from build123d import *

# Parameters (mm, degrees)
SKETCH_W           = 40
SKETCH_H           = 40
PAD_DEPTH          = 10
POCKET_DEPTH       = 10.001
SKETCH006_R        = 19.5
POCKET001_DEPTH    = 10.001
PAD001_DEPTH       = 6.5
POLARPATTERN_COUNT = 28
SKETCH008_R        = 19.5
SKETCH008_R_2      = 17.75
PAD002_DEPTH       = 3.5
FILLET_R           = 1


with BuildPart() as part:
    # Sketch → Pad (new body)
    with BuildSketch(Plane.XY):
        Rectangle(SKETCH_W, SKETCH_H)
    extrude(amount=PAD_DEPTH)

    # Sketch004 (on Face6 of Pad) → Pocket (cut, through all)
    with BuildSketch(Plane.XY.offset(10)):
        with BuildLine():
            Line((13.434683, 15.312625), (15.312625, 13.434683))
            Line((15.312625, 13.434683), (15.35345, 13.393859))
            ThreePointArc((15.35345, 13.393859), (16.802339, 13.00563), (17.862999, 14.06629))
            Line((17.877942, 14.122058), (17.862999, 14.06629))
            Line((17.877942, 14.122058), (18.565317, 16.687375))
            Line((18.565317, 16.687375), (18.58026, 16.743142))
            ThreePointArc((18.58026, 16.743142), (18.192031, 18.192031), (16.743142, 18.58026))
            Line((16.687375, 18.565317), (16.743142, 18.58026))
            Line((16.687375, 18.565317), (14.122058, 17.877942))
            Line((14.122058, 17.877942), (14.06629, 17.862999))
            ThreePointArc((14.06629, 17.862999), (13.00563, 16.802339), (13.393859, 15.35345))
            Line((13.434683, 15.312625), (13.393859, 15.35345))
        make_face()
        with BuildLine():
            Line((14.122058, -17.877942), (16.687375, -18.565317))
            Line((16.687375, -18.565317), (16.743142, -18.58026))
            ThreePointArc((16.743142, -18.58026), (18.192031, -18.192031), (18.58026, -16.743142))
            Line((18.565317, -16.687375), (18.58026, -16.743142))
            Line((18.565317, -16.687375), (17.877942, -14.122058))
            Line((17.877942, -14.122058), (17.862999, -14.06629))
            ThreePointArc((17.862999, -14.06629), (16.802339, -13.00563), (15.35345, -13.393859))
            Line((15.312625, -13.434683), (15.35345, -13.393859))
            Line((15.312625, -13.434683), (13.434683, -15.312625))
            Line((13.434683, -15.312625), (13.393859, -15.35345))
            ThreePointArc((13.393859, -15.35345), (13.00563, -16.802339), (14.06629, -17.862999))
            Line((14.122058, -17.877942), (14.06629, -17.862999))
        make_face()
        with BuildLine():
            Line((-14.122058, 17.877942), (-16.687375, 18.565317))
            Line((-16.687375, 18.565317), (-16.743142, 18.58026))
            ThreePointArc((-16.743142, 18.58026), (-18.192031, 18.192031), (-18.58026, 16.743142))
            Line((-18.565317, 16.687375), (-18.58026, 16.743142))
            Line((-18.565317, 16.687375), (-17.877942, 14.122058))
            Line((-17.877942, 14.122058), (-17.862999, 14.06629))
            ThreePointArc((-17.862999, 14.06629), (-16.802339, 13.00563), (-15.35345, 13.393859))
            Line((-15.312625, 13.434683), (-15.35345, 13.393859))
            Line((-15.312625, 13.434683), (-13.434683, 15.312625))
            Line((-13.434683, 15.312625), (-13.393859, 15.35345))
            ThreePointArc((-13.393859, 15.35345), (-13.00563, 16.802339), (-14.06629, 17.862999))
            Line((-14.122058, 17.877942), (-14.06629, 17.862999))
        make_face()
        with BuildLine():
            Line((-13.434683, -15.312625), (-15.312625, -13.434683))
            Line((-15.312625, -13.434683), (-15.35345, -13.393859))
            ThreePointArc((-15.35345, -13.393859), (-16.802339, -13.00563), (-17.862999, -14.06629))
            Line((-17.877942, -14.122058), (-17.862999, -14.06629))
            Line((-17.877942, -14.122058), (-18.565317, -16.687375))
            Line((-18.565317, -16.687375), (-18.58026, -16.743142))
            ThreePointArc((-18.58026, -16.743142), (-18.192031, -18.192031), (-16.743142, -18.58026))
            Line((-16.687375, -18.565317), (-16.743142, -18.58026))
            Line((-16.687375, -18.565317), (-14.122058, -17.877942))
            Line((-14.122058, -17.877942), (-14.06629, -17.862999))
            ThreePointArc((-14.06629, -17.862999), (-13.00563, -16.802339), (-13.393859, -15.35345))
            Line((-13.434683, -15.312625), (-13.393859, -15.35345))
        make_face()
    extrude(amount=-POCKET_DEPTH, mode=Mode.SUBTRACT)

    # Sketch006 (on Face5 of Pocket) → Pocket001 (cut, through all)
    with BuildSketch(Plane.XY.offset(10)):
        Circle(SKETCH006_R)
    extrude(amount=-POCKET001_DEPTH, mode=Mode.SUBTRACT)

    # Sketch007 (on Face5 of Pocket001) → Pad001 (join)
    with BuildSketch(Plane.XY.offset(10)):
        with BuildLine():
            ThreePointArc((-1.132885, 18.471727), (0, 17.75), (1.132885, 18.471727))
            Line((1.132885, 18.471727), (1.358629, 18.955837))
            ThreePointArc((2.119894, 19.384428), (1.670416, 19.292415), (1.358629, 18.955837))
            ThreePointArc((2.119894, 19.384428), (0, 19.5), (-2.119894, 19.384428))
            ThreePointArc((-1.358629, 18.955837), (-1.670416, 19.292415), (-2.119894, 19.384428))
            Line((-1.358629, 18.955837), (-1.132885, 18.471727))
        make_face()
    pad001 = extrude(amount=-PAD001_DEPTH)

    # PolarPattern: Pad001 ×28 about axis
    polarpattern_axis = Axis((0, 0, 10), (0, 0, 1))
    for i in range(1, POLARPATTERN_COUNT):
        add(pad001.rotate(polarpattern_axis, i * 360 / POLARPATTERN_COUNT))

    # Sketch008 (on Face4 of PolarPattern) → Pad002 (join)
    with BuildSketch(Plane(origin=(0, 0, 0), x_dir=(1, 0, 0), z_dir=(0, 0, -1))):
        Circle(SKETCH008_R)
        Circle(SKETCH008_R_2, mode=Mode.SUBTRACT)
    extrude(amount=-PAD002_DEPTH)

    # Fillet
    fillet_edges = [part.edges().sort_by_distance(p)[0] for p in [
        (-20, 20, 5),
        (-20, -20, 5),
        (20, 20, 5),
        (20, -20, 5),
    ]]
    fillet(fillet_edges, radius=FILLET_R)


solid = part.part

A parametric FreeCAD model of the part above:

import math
import FreeCAD as App
import Part
import Sketcher
Q = App.Units.Quantity


def edges_at(feature, points):
    """Names of the edges that pass closest to the given points."""
    edges = feature.Shape.Edges
    near = lambda p: min(range(len(edges)), key=lambda i: edges[i].distToShape(Part.Vertex(*p))[0])
    return sorted({f"Edge{near(p) + 1}" for p in points})


def add_polygon(sketch, points):
    """Adds a closed chain of lines whose ends are joined by coincident constraints."""
    first, n = sketch.GeometryCount, len(points)
    for a, b in zip(points, points[1:] + points[:1]):
        sketch.addGeometry(Part.LineSegment(App.Vector(*a, 0), App.Vector(*b, 0)), False)
    for i in range(n):
        sketch.addConstraint(Sketcher.Constraint("Coincident", first + i, 2, first + (i + 1) % n, 1))

doc = App.newDocument("Part")
body = doc.addObject("PartDesign::Body", "Body")

# Sketch on XY plane
sketch1 = doc.addObject("Sketcher::SketchObject", "Sketch")
body.addObject(sketch1)
sketch1.AttachmentSupport = (doc.XY_Plane, [""])
sketch1.MapMode = "FlatFace"
add_polygon(sketch1, [(-20, 20), (-20, -20), (20, -20), (20, 20)])  # lines 0-3
sketch1.addConstraint(Sketcher.Constraint("Vertical", 0))
sketch1.addConstraint(Sketcher.Constraint("Horizontal", 1))
sketch1.addConstraint(Sketcher.Constraint("Vertical", 2))
sketch1.addConstraint(Sketcher.Constraint("Horizontal", 3))
sketch1.addConstraint(Sketcher.Constraint("Symmetric", 0, 2, 2, 2, -1, 1))
sketch1.addConstraint(Sketcher.Constraint("Equal", 3, 0))
sketch1.addConstraint(Sketcher.Constraint("DistanceX", 1, 1, 1, 2, Q("40 mm")))
pad1 = doc.addObject("PartDesign::Pad", "Pad")
body.addObject(pad1)
pad1.Profile = sketch1
pad1.Length = 10

# Sketch on XY plane
sketch2 = doc.addObject("Sketcher::SketchObject", "Sketch001")
body.addObject(sketch2)
sketch2.AttachmentSupport = (doc.XY_Plane, [""])
sketch2.MapMode = "FlatFace"
sketch2.AttachmentOffset = App.Placement(App.Vector(0, 0, 10), App.Rotation())
sketch2.addGeometry(Part.LineSegment(App.Vector(13.434683, 15.312625, 0), App.Vector(15.312625, 13.434683, 0)), False)
sketch2.addGeometry(Part.LineSegment(App.Vector(15.312625, 13.434683, 0), App.Vector(15.35345, 13.393859, 0)), False)
sketch2.addGeometry(Part.ArcOfCircle(Part.Circle(App.Vector(16.41411, 14.454519, 0), App.Vector(0, 0, 1), 1.5), math.radians(-135.000027), math.radians(-15)), False)
sketch2.addGeometry(Part.LineSegment(App.Vector(17.862999, 14.06629, 0), App.Vector(17.877942, 14.122058, 0)), False)
sketch2.addGeometry(Part.LineSegment(App.Vector(17.877942, 14.122058, 0), App.Vector(18.565317, 16.687375, 0)), False)
sketch2.addGeometry(Part.LineSegment(App.Vector(18.565317, 16.687375, 0), App.Vector(18.58026, 16.743142, 0)), False)
sketch2.addGeometry(Part.ArcOfCircle(Part.Circle(App.Vector(17.13137, 17.13137, 0), App.Vector(0, 0, 1), 1.500001), math.radians(-14.999973), math.radians(104.999973)), False)
sketch2.addGeometry(Part.LineSegment(App.Vector(16.743142, 18.58026, 0), App.Vector(16.687375, 18.565317, 0)), False)
sketch2.addGeometry(Part.LineSegment(App.Vector(16.687375, 18.565317, 0), App.Vector(14.122058, 17.877942, 0)), False)
sketch2.addGeometry(Part.LineSegment(App.Vector(14.122058, 17.877942, 0), App.Vector(14.06629, 17.862999, 0)), False)
sketch2.addGeometry(Part.ArcOfCircle(Part.Circle(App.Vector(14.454519, 16.41411, 0), App.Vector(0, 0, 1), 1.5), math.radians(105), math.radians(225.000027)), False)
sketch2.addGeometry(Part.LineSegment(App.Vector(13.393859, 15.35345, 0), App.Vector(13.434683, 15.312625, 0)), False)
sketch2.addGeometry(Part.LineSegment(App.Vector(14.122058, -17.877942, 0), App.Vector(16.687375, -18.565317, 0)), False)
sketch2.addGeometry(Part.LineSegment(App.Vector(16.687375, -18.565317, 0), App.Vector(16.743142, -18.58026, 0)), False)
sketch2.addGeometry(Part.ArcOfCircle(Part.Circle(App.Vector(17.13137, -17.13137, 0), App.Vector(0, 0, 1), 1.500001), math.radians(-104.999973), math.radians(14.999973)), False)
sketch2.addGeometry(Part.LineSegment(App.Vector(18.58026, -16.743142, 0), App.Vector(18.565317, -16.687375, 0)), False)
sketch2.addGeometry(Part.LineSegment(App.Vector(18.565317, -16.687375, 0), App.Vector(17.877942, -14.122058, 0)), False)
sketch2.addGeometry(Part.LineSegment(App.Vector(17.877942, -14.122058, 0), App.Vector(17.862999, -14.06629, 0)), False)
sketch2.addGeometry(Part.ArcOfCircle(Part.Circle(App.Vector(16.41411, -14.454519, 0), App.Vector(0, 0, 1), 1.5), math.radians(15), math.radians(135.000027)), False)
sketch2.addGeometry(Part.LineSegment(App.Vector(15.35345, -13.393859, 0), App.Vector(15.312625, -13.434683, 0)), False)
sketch2.addGeometry(Part.LineSegment(App.Vector(15.312625, -13.434683, 0), App.Vector(13.434683, -15.312625, 0)), False)
sketch2.addGeometry(Part.LineSegment(App.Vector(13.434683, -15.312625, 0), App.Vector(13.393859, -15.35345, 0)), False)
sketch2.addGeometry(Part.ArcOfCircle(Part.Circle(App.Vector(14.454519, -16.41411, 0), App.Vector(0, 0, 1), 1.5), math.radians(134.999973), math.radians(255)), False)
sketch2.addGeometry(Part.LineSegment(App.Vector(14.06629, -17.862999, 0), App.Vector(14.122058, -17.877942, 0)), False)
sketch2.addGeometry(Part.LineSegment(App.Vector(-14.122058, 17.877942, 0), App.Vector(-16.687375, 18.565317, 0)), False)
sketch2.addGeometry(Part.LineSegment(App.Vector(-16.687375, 18.565317, 0), App.Vector(-16.743142, 18.58026, 0)), False)
sketch2.addGeometry(Part.ArcOfCircle(Part.Circle(App.Vector(-17.13137, 17.13137, 0), App.Vector(0, 0, 1), 1.500001), math.radians(75.000027), math.radians(194.999973)), False)
sketch2.addGeometry(Part.LineSegment(App.Vector(-18.58026, 16.743142, 0), App.Vector(-18.565317, 16.687375, 0)), False)
sketch2.addGeometry(Part.LineSegment(App.Vector(-18.565317, 16.687375, 0), App.Vector(-17.877942, 14.122058, 0)), False)
sketch2.addGeometry(Part.LineSegment(App.Vector(-17.877942, 14.122058, 0), App.Vector(-17.862999, 14.06629, 0)), False)
sketch2.addGeometry(Part.ArcOfCircle(Part.Circle(App.Vector(-16.41411, 14.454519, 0), App.Vector(0, 0, 1), 1.5), math.radians(-165), math.radians(-44.999973)), False)
sketch2.addGeometry(Part.LineSegment(App.Vector(-15.35345, 13.393859, 0), App.Vector(-15.312625, 13.434683, 0)), False)
sketch2.addGeometry(Part.LineSegment(App.Vector(-15.312625, 13.434683, 0), App.Vector(-13.434683, 15.312625, 0)), False)
sketch2.addGeometry(Part.LineSegment(App.Vector(-13.434683, 15.312625, 0), App.Vector(-13.393859, 15.35345, 0)), False)
sketch2.addGeometry(Part.ArcOfCircle(Part.Circle(App.Vector(-14.454519, 16.41411, 0), App.Vector(0, 0, 1), 1.5), math.radians(-45.000027), math.radians(75)), False)
sketch2.addGeometry(Part.LineSegment(App.Vector(-14.06629, 17.862999, 0), App.Vector(-14.122058, 17.877942, 0)), False)
sketch2.addGeometry(Part.LineSegment(App.Vector(-13.434683, -15.312625, 0), App.Vector(-15.312625, -13.434683, 0)), False)
sketch2.addGeometry(Part.LineSegment(App.Vector(-15.312625, -13.434683, 0), App.Vector(-15.35345, -13.393859, 0)), False)
sketch2.addGeometry(Part.ArcOfCircle(Part.Circle(App.Vector(-16.41411, -14.454519, 0), App.Vector(0, 0, 1), 1.5), math.radians(44.999973), math.radians(165)), False)
sketch2.addGeometry(Part.LineSegment(App.Vector(-17.862999, -14.06629, 0), App.Vector(-17.877942, -14.122058, 0)), False)
sketch2.addGeometry(Part.LineSegment(App.Vector(-17.877942, -14.122058, 0), App.Vector(-18.565317, -16.687375, 0)), False)
sketch2.addGeometry(Part.LineSegment(App.Vector(-18.565317, -16.687375, 0), App.Vector(-18.58026, -16.743142, 0)), False)
sketch2.addGeometry(Part.ArcOfCircle(Part.Circle(App.Vector(-17.13137, -17.13137, 0), App.Vector(0, 0, 1), 1.500001), math.radians(165.000027), math.radians(284.999973)), False)
sketch2.addGeometry(Part.LineSegment(App.Vector(-16.743142, -18.58026, 0), App.Vector(-16.687375, -18.565317, 0)), False)
sketch2.addGeometry(Part.LineSegment(App.Vector(-16.687375, -18.565317, 0), App.Vector(-14.122058, -17.877942, 0)), False)
sketch2.addGeometry(Part.LineSegment(App.Vector(-14.122058, -17.877942, 0), App.Vector(-14.06629, -17.862999, 0)), False)
sketch2.addGeometry(Part.ArcOfCircle(Part.Circle(App.Vector(-14.454519, -16.41411, 0), App.Vector(0, 0, 1), 1.5), math.radians(-75), math.radians(45.000027)), False)
sketch2.addGeometry(Part.LineSegment(App.Vector(-13.393859, -15.35345, 0), App.Vector(-13.434683, -15.312625, 0)), False)
sketch2.addConstraint(Sketcher.Constraint("Coincident", 0, 2, 1, 1))
sketch2.addConstraint(Sketcher.Constraint("Coincident", 1, 2, 2, 1))
sketch2.addConstraint(Sketcher.Constraint("Tangent", 2, 2, 3, 1))
sketch2.addConstraint(Sketcher.Constraint("Coincident", 3, 2, 4, 1))
sketch2.addConstraint(Sketcher.Constraint("Coincident", 4, 2, 5, 1))
sketch2.addConstraint(Sketcher.Constraint("Coincident", 5, 2, 6, 1))
sketch2.addConstraint(Sketcher.Constraint("Coincident", 6, 2, 7, 1))
sketch2.addConstraint(Sketcher.Constraint("Coincident", 7, 2, 8, 1))
sketch2.addConstraint(Sketcher.Constraint("Coincident", 8, 2, 9, 1))
sketch2.addConstraint(Sketcher.Constraint("Tangent", 9, 2, 10, 1))
sketch2.addConstraint(Sketcher.Constraint("Coincident", 10, 2, 11, 1))
sketch2.addConstraint(Sketcher.Constraint("Coincident", 11, 2, 0, 1))
sketch2.addConstraint(Sketcher.Constraint("Coincident", 12, 2, 13, 1))
sketch2.addConstraint(Sketcher.Constraint("Coincident", 13, 2, 14, 1))
sketch2.addConstraint(Sketcher.Constraint("Coincident", 14, 2, 15, 1))
sketch2.addConstraint(Sketcher.Constraint("Coincident", 15, 2, 16, 1))
sketch2.addConstraint(Sketcher.Constraint("Coincident", 16, 2, 17, 1))
sketch2.addConstraint(Sketcher.Constraint("Tangent", 17, 2, 18, 1))
sketch2.addConstraint(Sketcher.Constraint("Coincident", 18, 2, 19, 1))
sketch2.addConstraint(Sketcher.Constraint("Coincident", 19, 2, 20, 1))
sketch2.addConstraint(Sketcher.Constraint("Coincident", 20, 2, 21, 1))
sketch2.addConstraint(Sketcher.Constraint("Coincident", 21, 2, 22, 1))
sketch2.addConstraint(Sketcher.Constraint("Tangent", 22, 2, 23, 1))
sketch2.addConstraint(Sketcher.Constraint("Coincident", 23, 2, 12, 1))
sketch2.addConstraint(Sketcher.Constraint("Coincident", 24, 2, 25, 1))
sketch2.addConstraint(Sketcher.Constraint("Coincident", 25, 2, 26, 1))
sketch2.addConstraint(Sketcher.Constraint("Coincident", 26, 2, 27, 1))
sketch2.addConstraint(Sketcher.Constraint("Coincident", 27, 2, 28, 1))
sketch2.addConstraint(Sketcher.Constraint("Coincident", 28, 2, 29, 1))
sketch2.addConstraint(Sketcher.Constraint("Tangent", 29, 2, 30, 1))
sketch2.addConstraint(Sketcher.Constraint("Coincident", 30, 2, 31, 1))
sketch2.addConstraint(Sketcher.Constraint("Coincident", 31, 2, 32, 1))
sketch2.addConstraint(Sketcher.Constraint("Coincident", 32, 2, 33, 1))
sketch2.addConstraint(Sketcher.Constraint("Coincident", 33, 2, 34, 1))
sketch2.addConstraint(Sketcher.Constraint("Tangent", 34, 2, 35, 1))
sketch2.addConstraint(Sketcher.Constraint("Coincident", 35, 2, 24, 1))
sketch2.addConstraint(Sketcher.Constraint("Coincident", 36, 2, 37, 1))
sketch2.addConstraint(Sketcher.Constraint("Coincident", 37, 2, 38, 1))
sketch2.addConstraint(Sketcher.Constraint("Tangent", 38, 2, 39, 1))
sketch2.addConstraint(Sketcher.Constraint("Coincident", 39, 2, 40, 1))
sketch2.addConstraint(Sketcher.Constraint("Coincident", 40, 2, 41, 1))
sketch2.addConstraint(Sketcher.Constraint("Coincident", 41, 2, 42, 1))
sketch2.addConstraint(Sketcher.Constraint("Coincident", 42, 2, 43, 1))
sketch2.addConstraint(Sketcher.Constraint("Coincident", 43, 2, 44, 1))
sketch2.addConstraint(Sketcher.Constraint("Coincident", 44, 2, 45, 1))
sketch2.addConstraint(Sketcher.Constraint("Tangent", 45, 2, 46, 1))
sketch2.addConstraint(Sketcher.Constraint("Coincident", 46, 2, 47, 1))
sketch2.addConstraint(Sketcher.Constraint("Coincident", 47, 2, 36, 1))
sketch2.addConstraint(Sketcher.Constraint("Equal", 2, 6))
sketch2.addConstraint(Sketcher.Constraint("Equal", 6, 10))
sketch2.addConstraint(Sketcher.Constraint("Equal", 10, 14))
sketch2.addConstraint(Sketcher.Constraint("Equal", 14, 18))
sketch2.addConstraint(Sketcher.Constraint("Equal", 18, 22))
sketch2.addConstraint(Sketcher.Constraint("Equal", 22, 26))
sketch2.addConstraint(Sketcher.Constraint("Equal", 26, 30))
sketch2.addConstraint(Sketcher.Constraint("Equal", 30, 34))
sketch2.addConstraint(Sketcher.Constraint("Equal", 34, 38))
sketch2.addConstraint(Sketcher.Constraint("Equal", 38, 42))
sketch2.addConstraint(Sketcher.Constraint("Equal", 42, 46))
sketch2.addConstraint(Sketcher.Constraint("Symmetric", 14, 3, 26, 3, -1, 1))
sketch2.addConstraint(Sketcher.Constraint("Symmetric", 18, 3, 30, 3, -1, 1))
sketch2.addConstraint(Sketcher.Constraint("Symmetric", 22, 3, 34, 3, -1, 1))
sketch2.addConstraint(Sketcher.Constraint("Symmetric", 2, 3, 38, 3, -1, 1))
sketch2.addConstraint(Sketcher.Constraint("Symmetric", 6, 3, 42, 3, -1, 1))
sketch2.addConstraint(Sketcher.Constraint("Symmetric", 10, 3, 46, 3, -1, 1))
sketch2.addConstraint(Sketcher.Constraint("Symmetric", 12, 2, 24, 2, -1, 1))
sketch2.addConstraint(Sketcher.Constraint("Symmetric", 15, 2, 27, 2, -1, 1))
sketch2.addConstraint(Sketcher.Constraint("Symmetric", 16, 2, 28, 2, -1, 1))
sketch2.addConstraint(Sketcher.Constraint("Symmetric", 19, 2, 31, 2, -1, 1))
sketch2.addConstraint(Sketcher.Constraint("Symmetric", 20, 2, 32, 2, -1, 1))
sketch2.addConstraint(Sketcher.Constraint("Symmetric", 23, 2, 35, 2, -1, 1))
sketch2.addConstraint(Sketcher.Constraint("Symmetric", 0, 2, 36, 2, -1, 1))
sketch2.addConstraint(Sketcher.Constraint("Symmetric", 3, 2, 39, 2, -1, 1))
sketch2.addConstraint(Sketcher.Constraint("Symmetric", 4, 2, 40, 2, -1, 1))
sketch2.addConstraint(Sketcher.Constraint("Symmetric", 7, 2, 43, 2, -1, 1))
sketch2.addConstraint(Sketcher.Constraint("Symmetric", 8, 2, 44, 2, -1, 1))
sketch2.addConstraint(Sketcher.Constraint("Symmetric", 11, 2, 47, 2, -1, 1))
sketch2.addConstraint(Sketcher.Constraint("Symmetric", 6, 3, 26, 3, -2))
sketch2.addConstraint(Sketcher.Constraint("Symmetric", 2, 3, 30, 3, -2))
sketch2.addConstraint(Sketcher.Constraint("Symmetric", 10, 3, 34, 3, -2))
sketch2.addConstraint(Sketcher.Constraint("Symmetric", 7, 2, 24, 2, -2))
sketch2.addConstraint(Sketcher.Constraint("Symmetric", 4, 2, 27, 2, -2))
sketch2.addConstraint(Sketcher.Constraint("Symmetric", 3, 2, 28, 2, -2))
sketch2.addConstraint(Sketcher.Constraint("Symmetric", 0, 2, 31, 2, -2))
sketch2.addConstraint(Sketcher.Constraint("Symmetric", 11, 2, 32, 2, -2))
sketch2.addConstraint(Sketcher.Constraint("Symmetric", 8, 2, 35, 2, -2))
sketch2.addConstraint(Sketcher.Constraint("Parallel", 3, 4))
sketch2.addConstraint(Sketcher.Constraint("Parallel", 8, 9))
sketch2.addConstraint(Sketcher.Constraint("Perpendicular", 4, 12))
sketch2.addConstraint(Sketcher.Constraint("Perpendicular", 5, 13))
sketch2.addConstraint(Sketcher.Constraint("Perpendicular", 11, 19))
sketch2.addConstraint(Sketcher.Constraint("Perpendicular", 0, 20))
sketch2.addConstraint(Sketcher.Constraint("Horizontal", 6, 2, 25, 2))
sketch2.addConstraint(Sketcher.Constraint("Horizontal", 5, 2, 26, 2))
sketch2.addConstraint(Sketcher.Constraint("Horizontal", 1, 2, 30, 2))
sketch2.addConstraint(Sketcher.Constraint("Horizontal", 10, 2, 33, 2))
sketch2.addConstraint(Sketcher.Constraint("Horizontal", 18, 2, 37, 2))
sketch2.addConstraint(Sketcher.Constraint("Horizontal", 14, 2, 41, 2))
sketch2.addConstraint(Sketcher.Constraint("Horizontal", 13, 2, 42, 2))
sketch2.addConstraint(Sketcher.Constraint("Horizontal", 21, 2, 46, 2))
sketch2.addConstraint(Sketcher.Constraint("Vertical", 6, 2, 13, 2))
sketch2.addConstraint(Sketcher.Constraint("Vertical", 5, 2, 14, 2))
sketch2.addConstraint(Sketcher.Constraint("Vertical", 1, 2, 18, 2))
sketch2.addConstraint(Sketcher.Constraint("Vertical", 10, 2, 21, 2))
sketch2.addConstraint(Sketcher.Constraint("Equal", 1, 3))
sketch2.addConstraint(Sketcher.Constraint("Equal", 0, 4))
sketch2.addConstraint(Sketcher.Constraint("Equal", 3, 5))
sketch2.addConstraint(Sketcher.Constraint("Equal", 5, 7))
sketch2.addConstraint(Sketcher.Constraint("Equal", 4, 8))
sketch2.addConstraint(Sketcher.Constraint("Equal", 7, 9))
sketch2.addConstraint(Sketcher.Constraint("Equal", 9, 11))
sketch2.addConstraint(Sketcher.Constraint("Radius", 2, Q("1.5 mm")))
sketch2.addConstraint(Sketcher.Constraint("Angle", 3, Q("74.999991 deg")))
sketch2.addConstraint(Sketcher.Constraint("DistanceX", -1, 1, 2, 2, Q("17.862999 mm")))
sketch2.addConstraint(Sketcher.Constraint("DistanceY", -1, 1, 9, 2, Q("17.862999 mm")))
sketch2.addConstraint(Sketcher.Constraint("DistanceX", 25, 2, 10, 2, Q("30.137001 mm")))
sketch2.addConstraint(Sketcher.Constraint("DistanceY", 18, 3, 0, 2, Q("27.889202 mm")))
sketch2.addConstraint(Sketcher.Constraint("DistanceY", 1, 2, 3, 2, Q("0.728199 mm")))
sketch2.addConstraint(Sketcher.Constraint("DistanceX", 10, 3, 4, 2, Q("4.110798 mm")))
sketch2.addConstraint(Sketcher.Constraint("DistanceX", 10, 2, 8, 2, Q("0.728199 mm")))
sketch2.addConstraint(Sketcher.Constraint("Distance", 0, Q("2.655811 mm")))
pocket1 = doc.addObject("PartDesign::Pocket", "Pocket")
body.addObject(pocket1)
pocket1.Profile = sketch2
pocket1.Type = "ThroughAll"

# Sketch on XY plane
sketch3 = doc.addObject("Sketcher::SketchObject", "Sketch002")
body.addObject(sketch3)
sketch3.AttachmentSupport = (doc.XY_Plane, [""])
sketch3.MapMode = "FlatFace"
sketch3.AttachmentOffset = App.Placement(App.Vector(0, 0, 10), App.Rotation())
sketch3.addGeometry(Part.Circle(App.Vector(0, 0, 0), App.Vector(0, 0, 1), 19.5), False)
sketch3.addConstraint(Sketcher.Constraint("Coincident", 0, 3, -1, 1))
sketch3.addConstraint(Sketcher.Constraint("Diameter", 0, Q("39 mm")))
pocket2 = doc.addObject("PartDesign::Pocket", "Pocket001")
body.addObject(pocket2)
pocket2.Profile = sketch3
pocket2.Type = "ThroughAll"

# Sketch on XY plane
sketch4 = doc.addObject("Sketcher::SketchObject", "Sketch003")
body.addObject(sketch4)
sketch4.AttachmentSupport = (doc.XY_Plane, [""])
sketch4.MapMode = "FlatFace"
sketch4.AttachmentOffset = App.Placement(App.Vector(0, 0, 10), App.Rotation())
sketch4.addGeometry(Part.ArcOfCircle(Part.Circle(App.Vector(0, 19.000001, 0), App.Vector(0, 0, 1), 1.250001), math.radians(-154.999975), math.radians(-25.000025)), False)
sketch4.addGeometry(Part.LineSegment(App.Vector(1.132885, 18.471727, 0), App.Vector(1.358629, 18.955837, 0)), False)
sketch4.addGeometry(Part.ArcOfCircle(Part.Circle(App.Vector(2.03836, 18.638872, 0), App.Vector(0, 0, 1), 0.750001), math.radians(83.758961), math.radians(154.999924)), False)
sketch4.addGeometry(Part.ArcOfCircle(Part.Circle(App.Vector(0, 0.000002, 0), App.Vector(0, 0, 1), 19.499998), math.radians(83.758896), math.radians(96.241104)), False)
sketch4.addGeometry(Part.ArcOfCircle(Part.Circle(App.Vector(-2.03836, 18.638872, 0), App.Vector(0, 0, 1), 0.750001), math.radians(25.000076), math.radians(96.241039)), False)
sketch4.addGeometry(Part.LineSegment(App.Vector(-1.358629, 18.955837, 0), App.Vector(-1.132885, 18.471727, 0)), False)
sketch4.addConstraint(Sketcher.Constraint("Tangent", 0, 2, 1, 1))
sketch4.addConstraint(Sketcher.Constraint("Tangent", 1, 2, 2, 2))
sketch4.addConstraint(Sketcher.Constraint("Tangent", 2, 1, 3, 1))
sketch4.addConstraint(Sketcher.Constraint("Tangent", 3, 2, 4, 2))
sketch4.addConstraint(Sketcher.Constraint("Tangent", 4, 1, 5, 1))
sketch4.addConstraint(Sketcher.Constraint("Tangent", 5, 2, 0, 1))
sketch4.addConstraint(Sketcher.Constraint("Coincident", 3, 3, -1, 1))
sketch4.addConstraint(Sketcher.Constraint("Equal", 2, 4))
sketch4.addConstraint(Sketcher.Constraint("Symmetric", 1, 2, 4, 1, -2))
sketch4.addConstraint(Sketcher.Constraint("Angle", 1, Q("65.000019 deg")))
sketch4.addConstraint(Sketcher.Constraint("Radius", 0, Q("1.250001 mm")))
sketch4.addConstraint(Sketcher.Constraint("Radius", 2, Q("0.750001 mm")))
sketch4.addConstraint(Sketcher.Constraint("DistanceY", -1, 1, 0, 3, Q("19.000001 mm")))
sketch4.addConstraint(Sketcher.Constraint("Radius", 3, Q("19.499998 mm")))
pad2 = doc.addObject("PartDesign::Pad", "Pad001")
body.addObject(pad2)
pad2.Profile = sketch4
pad2.Length = 6.5
pad2.Reversed = True
doc.recompute()

polarpattern = doc.addObject("PartDesign::PolarPattern", "PolarPattern")
body.addObject(polarpattern)
polarpattern.Originals = [pad2]
polarpattern.Axis = (doc.Z_Axis, [""])
polarpattern.Angle = 360
polarpattern.Occurrences = 28
body.Tip = polarpattern

# Sketch on XY plane
sketch5 = doc.addObject("Sketcher::SketchObject", "Sketch004")
body.addObject(sketch5)
sketch5.AttachmentSupport = (doc.XY_Plane, [""])
sketch5.MapMode = "FlatFace"
sketch5.addGeometry(Part.Circle(App.Vector(0, 0, 0), App.Vector(0, 0, 1), 19.5), False)
sketch5.addGeometry(Part.Circle(App.Vector(0, 0, 0), App.Vector(0, 0, 1), 17.75), False)
sketch5.addConstraint(Sketcher.Constraint("Coincident", 0, 3, -1, 1))
sketch5.addConstraint(Sketcher.Constraint("Coincident", 1, 3, -1, 1))
sketch5.addConstraint(Sketcher.Constraint("Diameter", 0, Q("39 mm")))
sketch5.addConstraint(Sketcher.Constraint("Diameter", 1, Q("35.5 mm")))
pad3 = doc.addObject("PartDesign::Pad", "Pad002")
body.addObject(pad3)
pad3.Profile = sketch5
pad3.Length = 3.5
doc.recompute()

fillet = doc.addObject("PartDesign::Fillet", "Fillet")
body.addObject(fillet)
fillet.Base = (pad3, edges_at(pad3, [
    (-20, 20, 5),
    (-20, -20, 5),
    (20, 20, 5),
    (20, -20, 5),
]))
fillet.Radius = 1

doc.recompute()
